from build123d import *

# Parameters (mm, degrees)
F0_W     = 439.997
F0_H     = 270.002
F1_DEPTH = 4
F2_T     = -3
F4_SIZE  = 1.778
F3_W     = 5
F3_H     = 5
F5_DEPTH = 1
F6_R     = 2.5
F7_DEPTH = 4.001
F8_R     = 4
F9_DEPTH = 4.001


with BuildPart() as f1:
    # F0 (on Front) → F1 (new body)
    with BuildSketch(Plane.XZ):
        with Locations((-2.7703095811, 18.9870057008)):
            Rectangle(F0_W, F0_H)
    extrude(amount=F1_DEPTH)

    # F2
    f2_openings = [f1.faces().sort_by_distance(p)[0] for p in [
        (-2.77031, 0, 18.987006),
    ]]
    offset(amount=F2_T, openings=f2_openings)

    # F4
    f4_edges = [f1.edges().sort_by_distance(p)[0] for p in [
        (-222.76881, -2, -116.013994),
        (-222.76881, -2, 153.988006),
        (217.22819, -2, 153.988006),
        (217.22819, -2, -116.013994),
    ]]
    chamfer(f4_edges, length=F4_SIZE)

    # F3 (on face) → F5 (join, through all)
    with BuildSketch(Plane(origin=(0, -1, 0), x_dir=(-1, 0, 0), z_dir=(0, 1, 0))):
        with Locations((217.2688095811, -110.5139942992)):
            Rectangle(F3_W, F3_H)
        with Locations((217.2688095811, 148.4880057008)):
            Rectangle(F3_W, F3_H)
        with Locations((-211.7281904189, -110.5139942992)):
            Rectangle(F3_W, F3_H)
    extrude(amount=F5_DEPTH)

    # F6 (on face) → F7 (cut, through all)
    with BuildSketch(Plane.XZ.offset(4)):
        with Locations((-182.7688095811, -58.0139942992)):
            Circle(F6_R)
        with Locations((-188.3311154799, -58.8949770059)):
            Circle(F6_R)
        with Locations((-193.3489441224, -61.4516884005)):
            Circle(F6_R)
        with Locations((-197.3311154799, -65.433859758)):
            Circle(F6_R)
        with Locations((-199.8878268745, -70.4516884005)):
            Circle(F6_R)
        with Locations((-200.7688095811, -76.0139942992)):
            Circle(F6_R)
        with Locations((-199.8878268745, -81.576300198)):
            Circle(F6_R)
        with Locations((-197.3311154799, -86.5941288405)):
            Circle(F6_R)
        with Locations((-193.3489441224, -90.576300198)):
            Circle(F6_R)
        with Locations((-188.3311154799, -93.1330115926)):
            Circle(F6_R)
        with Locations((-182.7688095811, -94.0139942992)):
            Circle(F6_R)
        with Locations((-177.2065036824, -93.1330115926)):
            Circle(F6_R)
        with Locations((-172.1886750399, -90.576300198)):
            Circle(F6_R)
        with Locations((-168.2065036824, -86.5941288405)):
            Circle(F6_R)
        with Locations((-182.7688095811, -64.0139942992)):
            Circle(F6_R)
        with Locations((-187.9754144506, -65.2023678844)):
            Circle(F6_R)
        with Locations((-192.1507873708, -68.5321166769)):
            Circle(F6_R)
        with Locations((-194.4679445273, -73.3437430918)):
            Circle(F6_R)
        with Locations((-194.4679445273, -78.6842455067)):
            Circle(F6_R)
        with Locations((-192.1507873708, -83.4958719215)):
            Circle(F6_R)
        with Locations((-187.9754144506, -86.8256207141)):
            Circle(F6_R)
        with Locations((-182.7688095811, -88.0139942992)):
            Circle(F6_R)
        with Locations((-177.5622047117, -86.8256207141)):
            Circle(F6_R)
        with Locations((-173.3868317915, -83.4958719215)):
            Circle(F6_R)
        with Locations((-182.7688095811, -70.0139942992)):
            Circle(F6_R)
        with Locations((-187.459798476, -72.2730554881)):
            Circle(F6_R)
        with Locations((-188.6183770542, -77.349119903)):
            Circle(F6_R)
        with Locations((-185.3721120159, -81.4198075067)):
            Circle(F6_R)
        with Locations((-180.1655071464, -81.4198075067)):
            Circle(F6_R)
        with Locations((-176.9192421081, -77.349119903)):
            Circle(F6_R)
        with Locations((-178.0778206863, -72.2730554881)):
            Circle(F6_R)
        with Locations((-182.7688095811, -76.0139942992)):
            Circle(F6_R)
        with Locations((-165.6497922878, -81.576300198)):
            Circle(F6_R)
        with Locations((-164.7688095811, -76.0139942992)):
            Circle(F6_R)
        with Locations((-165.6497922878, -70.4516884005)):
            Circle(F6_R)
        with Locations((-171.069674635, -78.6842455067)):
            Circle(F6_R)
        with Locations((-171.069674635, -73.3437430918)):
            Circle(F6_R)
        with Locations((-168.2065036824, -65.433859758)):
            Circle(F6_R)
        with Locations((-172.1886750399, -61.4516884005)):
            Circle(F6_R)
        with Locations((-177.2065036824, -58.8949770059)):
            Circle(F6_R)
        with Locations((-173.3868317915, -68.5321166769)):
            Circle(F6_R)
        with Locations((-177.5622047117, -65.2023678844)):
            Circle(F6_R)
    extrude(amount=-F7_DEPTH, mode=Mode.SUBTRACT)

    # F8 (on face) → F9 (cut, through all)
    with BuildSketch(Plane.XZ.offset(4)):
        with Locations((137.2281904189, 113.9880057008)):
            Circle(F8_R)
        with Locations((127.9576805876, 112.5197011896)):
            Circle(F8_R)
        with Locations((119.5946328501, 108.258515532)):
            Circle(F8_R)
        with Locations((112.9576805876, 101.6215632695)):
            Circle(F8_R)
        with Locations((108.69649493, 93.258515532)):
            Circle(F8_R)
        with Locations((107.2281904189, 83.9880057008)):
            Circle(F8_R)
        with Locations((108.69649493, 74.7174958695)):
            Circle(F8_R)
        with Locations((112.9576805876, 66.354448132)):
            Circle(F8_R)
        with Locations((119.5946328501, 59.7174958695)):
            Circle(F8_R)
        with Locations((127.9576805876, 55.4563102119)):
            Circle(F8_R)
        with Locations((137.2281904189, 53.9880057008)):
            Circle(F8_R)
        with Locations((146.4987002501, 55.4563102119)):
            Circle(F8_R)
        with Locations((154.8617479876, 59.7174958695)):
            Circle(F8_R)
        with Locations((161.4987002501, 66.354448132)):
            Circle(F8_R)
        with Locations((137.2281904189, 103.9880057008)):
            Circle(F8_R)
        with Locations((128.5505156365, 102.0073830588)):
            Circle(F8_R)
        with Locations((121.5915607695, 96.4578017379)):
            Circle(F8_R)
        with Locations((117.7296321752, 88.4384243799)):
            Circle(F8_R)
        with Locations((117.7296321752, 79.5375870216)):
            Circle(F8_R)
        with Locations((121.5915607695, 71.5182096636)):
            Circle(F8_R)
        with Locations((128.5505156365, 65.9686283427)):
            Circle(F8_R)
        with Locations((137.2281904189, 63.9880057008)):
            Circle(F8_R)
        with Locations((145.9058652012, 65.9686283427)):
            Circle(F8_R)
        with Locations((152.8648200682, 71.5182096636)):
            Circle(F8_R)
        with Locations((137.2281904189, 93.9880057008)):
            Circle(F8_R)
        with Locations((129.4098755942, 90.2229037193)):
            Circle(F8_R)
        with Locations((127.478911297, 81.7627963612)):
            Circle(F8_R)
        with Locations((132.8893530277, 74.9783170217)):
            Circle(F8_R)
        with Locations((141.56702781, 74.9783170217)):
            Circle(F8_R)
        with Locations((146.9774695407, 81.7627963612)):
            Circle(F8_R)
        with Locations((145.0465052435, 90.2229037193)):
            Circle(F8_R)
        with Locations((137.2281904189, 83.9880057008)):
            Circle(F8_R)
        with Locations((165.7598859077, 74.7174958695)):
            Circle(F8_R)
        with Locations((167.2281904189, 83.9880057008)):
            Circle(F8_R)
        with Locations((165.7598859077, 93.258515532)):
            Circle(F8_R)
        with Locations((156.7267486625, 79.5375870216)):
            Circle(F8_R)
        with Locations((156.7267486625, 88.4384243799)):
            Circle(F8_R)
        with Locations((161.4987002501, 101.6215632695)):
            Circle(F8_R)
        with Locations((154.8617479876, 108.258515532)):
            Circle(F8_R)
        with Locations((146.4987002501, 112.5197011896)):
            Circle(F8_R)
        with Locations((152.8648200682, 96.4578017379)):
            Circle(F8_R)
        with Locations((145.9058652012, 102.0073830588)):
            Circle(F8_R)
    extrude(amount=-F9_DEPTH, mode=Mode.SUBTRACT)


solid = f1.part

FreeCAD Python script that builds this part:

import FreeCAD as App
import Part
import Sketcher


def edges_at(feature, points):
    """Names of the edges that pass closest to the given points."""
    edges = feature.Shape.Edges
    near = lambda p: min(range(len(edges)), key=lambda i: edges[i].distToShape(Part.Vertex(*p))[0])
    return sorted({f"Edge{near(p) + 1}" for p in points})


def faces_at(feature, points):
    """Names of the faces that lie closest to the given points."""
    faces = feature.Shape.Faces
    near = lambda p: min(range(len(faces)), key=lambda i: faces[i].distToShape(Part.Vertex(*p))[0])
    return sorted({f"Face{near(p) + 1}" for p in points})


def add_polygon(sketch, points):
    """Adds a closed chain of lines whose ends are joined by coincident constraints."""
    first, n = sketch.GeometryCount, len(points)
    for a, b in zip(points, points[1:] + points[:1]):
        sketch.addGeometry(Part.LineSegment(App.Vector(*a, 0), App.Vector(*b, 0)), False)
    for i in range(n):
        sketch.addConstraint(Sketcher.Constraint("Coincident", first + i, 2, first + (i + 1) % n, 1))

doc = App.newDocument("Part")
body = doc.addObject("PartDesign::Body", "Body")

# Sketch on XZ plane
sketch1 = doc.addObject("Sketcher::SketchObject", "Sketch")
body.addObject(sketch1)
sketch1.AttachmentSupport = (doc.XZ_Plane, [""])
sketch1.MapMode = "FlatFace"
add_polygon(sketch1, [(-223, 154), (-223, -116), (217, -116), (217, 154)])  # lines 0-3
sketch1.addConstraint(Sketcher.Constraint("Vertical", 0))
sketch1.addConstraint(Sketcher.Constraint("Horizontal", 1))
sketch1.addConstraint(Sketcher.Constraint("Vertical", 2))
sketch1.addConstraint(Sketcher.Constraint("Horizontal", 3))
sketch1.addConstraint(Sketcher.Constraint("DistanceX", 1, 1, 1, 2, 439.997))
sketch1.addConstraint(Sketcher.Constraint("DistanceY", 0, 2, 0, 1, 270.002))
sketch1.addConstraint(Sketcher.Constraint("DistanceX", 0, 2, -1, 1, 222.76881))
sketch1.addConstraint(Sketcher.Constraint("DistanceY", 0, 2, -1, 1, 116.013994))
pad1 = doc.addObject("PartDesign::Pad", "Pad")
body.addObject(pad1)
pad1.Profile = sketch1
pad1.Length = 4
doc.recompute()

thickness = doc.addObject("PartDesign::Thickness", "Thickness")
body.addObject(thickness)
thickness.Base = (pad1, faces_at(pad1, [(-2.77, 0, 18.987)]))
thickness.Value = 3
thickness.Reversed = True
thickness.Join = "Arc"
doc.recompute()

chamfer = doc.addObject("PartDesign::Chamfer", "Chamfer")
body.addObject(chamfer)
chamfer.Base = (thickness, edges_at(thickness, [
    (-222.769, -2, -116.014),
    (-222.769, -2, 153.988),
    (217.228, -2, 153.988),
    (217.228, -2, -116.014),
]))
chamfer.Size = 1.778

# Sketch on XZ plane
sketch2 = doc.addObject("Sketcher::SketchObject", "Sketch001")
body.addObject(sketch2)
sketch2.AttachmentSupport = (doc.XZ_Plane, [""])
sketch2.MapMode = "FlatFace"
sketch2.AttachmentOffset = App.Placement(App.Vector(0, 0, 1), App.Rotation())
add_polygon(sketch2, [(-215, -108), (-215, -113), (-220, -113), (-220, -108)])  # lines 0-3
add_polygon(sketch2, [(-215, 151), (-215, 146), (-220, 146), (-220, 151)])  # lines 4-7
add_polygon(sketch2, [(214, -108), (214, -113), (209, -113), (209, -108)])  # lines 8-11
sketch2.addConstraint(Sketcher.Constraint("Vertical", 0))
sketch2.addConstraint(Sketcher.Constraint("Horizontal", 1))
sketch2.addConstraint(Sketcher.Constraint("Vertical", 2))
sketch2.addConstraint(Sketcher.Constraint("Horizontal", 3))
sketch2.addConstraint(Sketcher.Constraint("Vertical", 4))
sketch2.addConstraint(Sketcher.Constraint("Horizontal", 5))
sketch2.addConstraint(Sketcher.Constraint("Vertical", 6))
sketch2.addConstraint(Sketcher.Constraint("Horizontal", 7))
sketch2.addConstraint(Sketcher.Constraint("Vertical", 8))
sketch2.addConstraint(Sketcher.Constraint("Horizontal", 9))
sketch2.addConstraint(Sketcher.Constraint("Vertical", 10))
sketch2.addConstraint(Sketcher.Constraint("Horizontal", 11))
sketch2.addConstraint(Sketcher.Constraint("Horizontal", 1, 2, 8, 2))
sketch2.addConstraint(Sketcher.Constraint("Horizontal", 3, 2, 10, 2))
sketch2.addConstraint(Sketcher.Constraint("Vertical", 3, 2, 4, 2))
sketch2.addConstraint(Sketcher.Constraint("Vertical", 2, 2, 5, 2))
sketch2.addConstraint(Sketcher.Constraint("Equal", 7, 9))
sketch2.addConstraint(Sketcher.Constraint("Equal", 11, 0))
sketch2.addConstraint(Sketcher.Constraint("Equal", 2, 4))
sketch2.addConstraint(Sketcher.Constraint("DistanceX", 1, 2, 1, 1, 5.0))
sketch2.addConstraint(Sketcher.Constraint("DistanceY", 3, 2, 4, 2, 254.002))
sketch2.addConstraint(Sketcher.Constraint("DistanceX", 0, 2, 8, 2, 428.997))
sketch2.addConstraint(Sketcher.Constraint("DistanceX", 0, 2, -1, 1, 214.76881))
sketch2.addConstraint(Sketcher.Constraint("DistanceY", 0, 2, -1, 1, 113.013994))
pad2 = doc.addObject("PartDesign::Pad", "Pad001")
body.addObject(pad2)
pad2.Profile = sketch2
pad2.Length = 1
pad2.Reversed = True

# Sketch on XZ plane
sketch3 = doc.addObject("Sketcher::SketchObject", "Sketch002")
body.addObject(sketch3)
sketch3.AttachmentSupport = (doc.XZ_Plane, [""])
sketch3.MapMode = "FlatFace"
sketch3.AttachmentOffset = App.Placement(App.Vector(0, 0, 4), App.Rotation())
sketch3.addGeometry(Part.Circle(App.Vector(-182.8, -58, 0), App.Vector(0, 0, 1), 2.5), False)
sketch3.addGeometry(Part.Circle(App.Vector(-188.3, -58.9, 0), App.Vector(0, 0, 1), 2.5), False)
sketch3.addGeometry(Part.Circle(App.Vector(-193.3, -61.5, 0), App.Vector(0, 0, 1), 2.5), False)
sketch3.addGeometry(Part.Circle(App.Vector(-197.3, -65.4, 0), App.Vector(0, 0, 1), 2.5), False)
sketch3.addGeometry(Part.Circle(App.Vector(-199.9, -70.5, 0), App.Vector(0, 0, 1), 2.5), False)
sketch3.addGeometry(Part.Circle(App.Vector(-200.8, -76, 0), App.Vector(0, 0, 1), 2.5), False)
sketch3.addGeometry(Part.Circle(App.Vector(-199.9, -81.6, 0), App.Vector(0, 0, 1), 2.5), False)
sketch3.addGeometry(Part.Circle(App.Vector(-197.3, -86.6, 0), App.Vector(0, 0, 1), 2.5), False)
sketch3.addGeometry(Part.Circle(App.Vector(-193.3, -90.6, 0), App.Vector(0, 0, 1), 2.5), False)
sketch3.addGeometry(Part.Circle(App.Vector(-188.3, -93.1, 0), App.Vector(0, 0, 1), 2.5), False)
sketch3.addGeometry(Part.Circle(App.Vector(-182.8, -94, 0), App.Vector(0, 0, 1), 2.5), False)
sketch3.addGeometry(Part.Circle(App.Vector(-177.2, -93.1, 0), App.Vector(0, 0, 1), 2.5), False)
sketch3.addGeometry(Part.Circle(App.Vector(-172.2, -90.6, 0), App.Vector(0, 0, 1), 2.5), False)
sketch3.addGeometry(Part.Circle(App.Vector(-168.2, -86.6, 0), App.Vector(0, 0, 1), 2.5), False)
sketch3.addGeometry(Part.Circle(App.Vector(-182.8, -64, 0), App.Vector(0, 0, 1), 2.5), False)
sketch3.addGeometry(Part.Circle(App.Vector(-188, -65.2, 0), App.Vector(0, 0, 1), 2.5), False)
sketch3.addGeometry(Part.Circle(App.Vector(-192.2, -68.5, 0), App.Vector(0, 0, 1), 2.5), False)
sketch3.addGeometry(Part.Circle(App.Vector(-194.5, -73.3, 0), App.Vector(0, 0, 1), 2.5), False)
sketch3.addGeometry(Part.Circle(App.Vector(-194.5, -78.7, 0), App.Vector(0, 0, 1), 2.5), False)
sketch3.addGeometry(Part.Circle(App.Vector(-192.2, -83.5, 0), App.Vector(0, 0, 1), 2.5), False)
sketch3.addGeometry(Part.Circle(App.Vector(-188, -86.8, 0), App.Vector(0, 0, 1), 2.5), False)
sketch3.addGeometry(Part.Circle(App.Vector(-182.8, -88, 0), App.Vector(0, 0, 1), 2.5), False)
sketch3.addGeometry(Part.Circle(App.Vector(-177.6, -86.8, 0), App.Vector(0, 0, 1), 2.5), False)
sketch3.addGeometry(Part.Circle(App.Vector(-173.4, -83.5, 0), App.Vector(0, 0, 1), 2.5), False)
sketch3.addGeometry(Part.Circle(App.Vector(-182.8, -70, 0), App.Vector(0, 0, 1), 2.5), False)
sketch3.addGeometry(Part.Circle(App.Vector(-187.5, -72.3, 0), App.Vector(0, 0, 1), 2.5), False)
sketch3.addGeometry(Part.Circle(App.Vector(-188.6, -77.3, 0), App.Vector(0, 0, 1), 2.5), False)
sketch3.addGeometry(Part.Circle(App.Vector(-185.4, -81.4, 0), App.Vector(0, 0, 1), 2.5), False)
sketch3.addGeometry(Part.Circle(App.Vector(-180.2, -81.4, 0), App.Vector(0, 0, 1), 2.5), False)
sketch3.addGeometry(Part.Circle(App.Vector(-176.9, -77.3, 0), App.Vector(0, 0, 1), 2.5), False)
sketch3.addGeometry(Part.Circle(App.Vector(-178.1, -72.3, 0), App.Vector(0, 0, 1), 2.5), False)
sketch3.addGeometry(Part.Circle(App.Vector(-182.8, -76, 0), App.Vector(0, 0, 1), 2.5), False)
sketch3.addGeometry(Part.Circle(App.Vector(-165.6, -81.6, 0), App.Vector(0, 0, 1), 2.5), False)
sketch3.addGeometry(Part.Circle(App.Vector(-164.8, -76, 0), App.Vector(0, 0, 1), 2.5), False)
sketch3.addGeometry(Part.Circle(App.Vector(-165.6, -70.5, 0), App.Vector(0, 0, 1), 2.5), False)
sketch3.addGeometry(Part.Circle(App.Vector(-171.1, -78.7, 0), App.Vector(0, 0, 1), 2.5), False)
sketch3.addGeometry(Part.Circle(App.Vector(-171.1, -73.3, 0), App.Vector(0, 0, 1), 2.5), False)
sketch3.addGeometry(Part.Circle(App.Vector(-168.2, -65.4, 0), App.Vector(0, 0, 1), 2.5), False)
sketch3.addGeometry(Part.Circle(App.Vector(-172.2, -61.5, 0), App.Vector(0, 0, 1), 2.5), False)
sketch3.addGeometry(Part.Circle(App.Vector(-177.2, -58.9, 0), App.Vector(0, 0, 1), 2.5), False)
sketch3.addGeometry(Part.Circle(App.Vector(-173.4, -68.5, 0), App.Vector(0, 0, 1), 2.5), False)
sketch3.addGeometry(Part.Circle(App.Vector(-177.6, -65.2, 0), App.Vector(0, 0, 1), 2.5), False)
sketch3.addConstraint(Sketcher.Constraint("Equal", 0, 1))
sketch3.addConstraint(Sketcher.Constraint("Equal", 1, 2))
sketch3.addConstraint(Sketcher.Constraint("Equal", 2, 3))
sketch3.addConstraint(Sketcher.Constraint("Equal", 3, 4))
sketch3.addConstraint(Sketcher.Constraint("Equal", 4, 5))
sketch3.addConstraint(Sketcher.Constraint("Equal", 5, 6))
sketch3.addConstraint(Sketcher.Constraint("Equal", 6, 7))
sketch3.addConstraint(Sketcher.Constraint("Equal", 7, 8))
sketch3.addConstraint(Sketcher.Constraint("Equal", 8, 9))
sketch3.addConstraint(Sketcher.Constraint("Equal", 9, 10))
sketch3.addConstraint(Sketcher.Constraint("Equal", 10, 11))
sketch3.addConstraint(Sketcher.Constraint("Equal", 11, 12))
sketch3.addConstraint(Sketcher.Constraint("Equal", 12, 13))
sketch3.addConstraint(Sketcher.Constraint("Equal", 13, 14))
sketch3.addConstraint(Sketcher.Constraint("Equal", 14, 15))
sketch3.addConstraint(Sketcher.Constraint("Equal", 15, 16))
sketch3.addConstraint(Sketcher.Constraint("Equal", 16, 17))
sketch3.addConstraint(Sketcher.Constraint("Equal", 17, 18))
sketch3.addConstraint(Sketcher.Constraint("Equal", 18, 19))
sketch3.addConstraint(Sketcher.Constraint("Equal", 19, 20))
sketch3.addConstraint(Sketcher.Constraint("Equal", 20, 21))
sketch3.addConstraint(Sketcher.Constraint("Equal", 21, 22))
sketch3.addConstraint(Sketcher.Constraint("Equal", 22, 23))
sketch3.addConstraint(Sketcher.Constraint("Equal", 23, 24))
sketch3.addConstraint(Sketcher.Constraint("Equal", 24, 25))
sketch3.addConstraint(Sketcher.Constraint("Equal", 25, 26))
sketch3.addConstraint(Sketcher.Constraint("Equal", 26, 27))
sketch3.addConstraint(Sketcher.Constraint("Equal", 27, 28))
sketch3.addConstraint(Sketcher.Constraint("Equal", 28, 29))
sketch3.addConstraint(Sketcher.Constraint("Equal", 29, 30))
sketch3.addConstraint(Sketcher.Constraint("Equal", 30, 31))
sketch3.addConstraint(Sketcher.Constraint("Equal", 31, 32))
sketch3.addConstraint(Sketcher.Constraint("Equal", 32, 33))
sketch3.addConstraint(Sketcher.Constraint("Equal", 33, 34))
sketch3.addConstraint(Sketcher.Constraint("Equal", 34, 35))
sketch3.addConstraint(Sketcher.Constraint("Equal", 35, 36))
sketch3.addConstraint(Sketcher.Constraint("Equal", 36, 37))
sketch3.addConstraint(Sketcher.Constraint("Equal", 37, 38))
sketch3.addConstraint(Sketcher.Constraint("Equal", 38, 39))
sketch3.addConstraint(Sketcher.Constraint("Equal", 39, 40))
sketch3.addConstraint(Sketcher.Constraint("Equal", 40, 41))
sketch3.addConstraint(Sketcher.Constraint("Horizontal", 9, 3, 11, 3))
sketch3.addConstraint(Sketcher.Constraint("Horizontal", 8, 3, 12, 3))
sketch3.addConstraint(Sketcher.Constraint("Horizontal", 7, 3, 13, 3))
sketch3.addConstraint(Sketcher.Constraint("Horizontal", 20, 3, 22, 3))
sketch3.addConstraint(Sketcher.Constraint("Horizontal", 19, 3, 23, 3))
sketch3.addConstraint(Sketcher.Constraint("Horizontal", 27, 3, 28, 3))
sketch3.addConstraint(Sketcher.Constraint("Horizontal", 26, 3, 29, 3))
sketch3.addConstraint(Sketcher.Constraint("Horizontal", 25, 3, 30, 3))
sketch3.addConstraint(Sketcher.Constraint("Horizontal", 5, 3, 31, 3))
sketch3.addConstraint(Sketcher.Constraint("Horizontal", 6, 3, 32, 3))
sketch3.addConstraint(Sketcher.Constraint("Horizontal", 31, 3, 33, 3))
sketch3.addConstraint(Sketcher.Constraint("Horizontal", 4, 3, 34, 3))
sketch3.addConstraint(Sketcher.Constraint("Horizontal", 18, 3, 35, 3))
sketch3.addConstraint(Sketcher.Constraint("Horizontal", 17, 3, 36, 3))
sketch3.addConstraint(Sketcher.Constraint("Horizontal", 3, 3, 37, 3))
sketch3.addConstraint(Sketcher.Constraint("Horizontal", 2, 3, 38, 3))
sketch3.addConstraint(Sketcher.Constraint("Horizontal", 1, 3, 39, 3))
sketch3.addConstraint(Sketcher.Constraint("Horizontal", 16, 3, 40, 3))
sketch3.addConstraint(Sketcher.Constraint("Horizontal", 15, 3, 41, 3))
sketch3.addConstraint(Sketcher.Constraint("Vertical", 4, 3, 6, 3))
sketch3.addConstraint(Sketcher.Constraint("Vertical", 3, 3, 7, 3))
sketch3.addConstraint(Sketcher.Constraint("Vertical", 2, 3, 8, 3))
sketch3.addConstraint(Sketcher.Constraint("Vertical", 1, 3, 9, 3))
sketch3.addConstraint(Sketcher.Constraint("Vertical", 0, 3, 10, 3))
sketch3.addConstraint(Sketcher.Constraint("Vertical", 10, 3, 14, 3))
sketch3.addConstraint(Sketcher.Constraint("Vertical", 17, 3, 18, 3))
sketch3.addConstraint(Sketcher.Constraint("Vertical", 16, 3, 19, 3))
sketch3.addConstraint(Sketcher.Constraint("Vertical", 15, 3, 20, 3))
sketch3.addConstraint(Sketcher.Constraint("Vertical", 14, 3, 21, 3))
sketch3.addConstraint(Sketcher.Constraint("Vertical", 21, 3, 24, 3))
sketch3.addConstraint(Sketcher.Constraint("Vertical", 24, 3, 31, 3))
sketch3.addConstraint(Sketcher.Constraint("Vertical", 32, 3, 34, 3))
sketch3.addConstraint(Sketcher.Constraint("Vertical", 35, 3, 36, 3))
sketch3.addConstraint(Sketcher.Constraint("Vertical", 13, 3, 37, 3))
sketch3.addConstraint(Sketcher.Constraint("Vertical", 12, 3, 38, 3))
sketch3.addConstraint(Sketcher.Constraint("Vertical", 11, 3, 39, 3))
sketch3.addConstraint(Sketcher.Constraint("Vertical", 23, 3, 40, 3))
sketch3.addConstraint(Sketcher.Constraint("Vertical", 22, 3, 41, 3))
sketch3.addConstraint(Sketcher.Constraint("Diameter", 0, 5.0))
sketch3.addConstraint(Sketcher.Constraint("DistanceX", 3, 3, 1, 3, 9.0))
sketch3.addConstraint(Sketcher.Constraint("DistanceY", 4, 3, 2, 3, 9.0))
sketch3.addConstraint(Sketcher.Constraint("DistanceX", 5, 3, 0, 3, 18.0))
sketch3.addConstraint(Sketcher.Constraint("DistanceY", 5, 3, 0, 3, 18.0))
sketch3.addConstraint(Sketcher.Constraint("DistanceY", 8, 3, 6, 3, 9.0))
sketch3.addConstraint(Sketcher.Constraint("DistanceY", 10, 3, 5, 3, 18.0))
sketch3.addConstraint(Sketcher.Constraint("DistanceX", 11, 3, 13, 3, 9.0))
sketch3.addConstraint(Sketcher.Constraint("DistanceY", 14, 3, 0, 3, 6.0))
sketch3.addConstraint(Sketcher.Constraint("DistanceY", 10, 3, 21, 3, 6.0))
sketch3.addConstraint(Sketcher.Constraint("DistanceY", 24, 3, 14, 3, 6.0))
sketch3.addConstraint(Sketcher.Constraint("DistanceX", 38, 3, 36, 3, 1.119))
sketch3.addConstraint(Sketcher.Constraint("DistanceY", 6, 3, -1, 1, 81.5763))
sketch3.addConstraint(Sketcher.Constraint("DistanceX", 25, 3, -1, 1, 187.459798))
sketch3.addConstraint(Sketcher.Constraint("DistanceX", 1, 3, 15, 3, 0.355701))
sketch3.addConstraint(Sketcher.Constraint("DistanceX", 22, 3, 11, 3, 0.355701))
sketch3.addConstraint(Sketcher.Constraint("DistanceY", 22, 3, 29, 3, 9.476501))
sketch3.addConstraint(Sketcher.Constraint("DistanceX", 0, 3, -1, 1, 182.76881))
sketch3.addConstraint(Sketcher.Constraint("DistanceY", 2, 3, -1, 1, 61.451688))
sketch3.addConstraint(Sketcher.Constraint("DistanceY", 3, 3, -1, 1, 65.43386))
sketch3.addConstraint(Sketcher.Constraint("DistanceY", 7, 3, -1, 1, 86.594129))
sketch3.addConstraint(Sketcher.Constraint("DistanceY", 9, 3, -1, 1, 93.133012))
sketch3.addConstraint(Sketcher.Constraint("DistanceY", 19, 3, -1, 1, 83.495872))
sketch3.addConstraint(Sketcher.Constraint("DistanceY", 20, 3, -1, 1, 86.825621))
sketch3.addConstraint(Sketcher.Constraint("DistanceX", 23, 3, -1, 1, 173.386832))
sketch3.addConstraint(Sketcher.Constraint("DistanceX", 30, 3, -1, 1, 178.077821))
sketch3.addConstraint(Sketcher.Constraint("DistanceX", 33, 3, -1, 1, 164.76881))
sketch3.addConstraint(Sketcher.Constraint("DistanceX", 2, 3, 1, 3, 5.017829))
sketch3.addConstraint(Sketcher.Constraint("DistanceY", 2, 3, 1, 3, 2.556711))
sketch3.addConstraint(Sketcher.Constraint("DistanceX", 4, 3, 3, 3, 2.556711))
sketch3.addConstraint(Sketcher.Constraint("DistanceX", 9, 3, 11, 3, 11.124612))
sketch3.addConstraint(Sketcher.Constraint("DistanceX", 11, 3, 12, 3, 5.017829))
sketch3.addConstraint(Sketcher.Constraint("DistanceY", 15, 3, 1, 3, 6.307391))
sketch3.addConstraint(Sketcher.Constraint("DistanceY", 16, 3, 15, 3, 3.329749))
sketch3.addConstraint(Sketcher.Constraint("DistanceX", 3, 3, 16, 3, 5.180328))
sketch3.addConstraint(Sketcher.Constraint("DistanceY", 5, 3, 17, 3, 2.670251))
sketch3.addConstraint(Sketcher.Constraint("DistanceX", 3, 3, 17, 3, 2.863171))
sketch3.addConstraint(Sketcher.Constraint("DistanceY", 18, 3, 5, 3, 2.670251))
sketch3.addConstraint(Sketcher.Constraint("DistanceX", 23, 3, 13, 3, 5.180328))
sketch3.addConstraint(Sketcher.Constraint("DistanceY", 25, 3, 24, 3, 2.259061))
sketch3.addConstraint(Sketcher.Constraint("DistanceY", 25, 3, 16, 3, 3.740939))
sketch3.addConstraint(Sketcher.Constraint("DistanceX", 26, 3, 25, 3, 1.158579))
sketch3.addConstraint(Sketcher.Constraint("DistanceX", 26, 3, 28, 3, 8.45287))
sketch3.addConstraint(Sketcher.Constraint("DistanceX", 29, 3, 23, 3, 3.53241))
sketch3.addConstraint(Sketcher.Constraint("DistanceX", 27, 3, 29, 3, 8.45287))
sketch3.addConstraint(Sketcher.Constraint("DistanceX", 13, 3, 32, 3, 2.556711))
sketch3.addConstraint(Sketcher.Constraint("DistanceY", 27, 3, -1, 1, 81.419808))
pocket1 = doc.addObject("PartDesign::Pocket", "Pocket")
body.addObject(pocket1)
pocket1.Profile = sketch3
pocket1.Type = "ThroughAll"

# Sketch on XZ plane
sketch4 = doc.addObject("Sketcher::SketchObject", "Sketch003")
body.addObject(sketch4)
sketch4.AttachmentSupport = (doc.XZ_Plane, [""])
sketch4.MapMode = "FlatFace"
sketch4.AttachmentOffset = App.Placement(App.Vector(0, 0, 4), App.Rotation())
sketch4.addGeometry(Part.Circle(App.Vector(137.2, 114, 0), App.Vector(0, 0, 1), 4), False)
sketch4.addGeometry(Part.Circle(App.Vector(128, 112.5, 0), App.Vector(0, 0, 1), 4), False)
sketch4.addGeometry(Part.Circle(App.Vector(119.6, 108.3, 0), App.Vector(0, 0, 1), 4), False)
sketch4.addGeometry(Part.Circle(App.Vector(113, 101.6, 0), App.Vector(0, 0, 1), 4), False)
sketch4.addGeometry(Part.Circle(App.Vector(108.7, 93.3, 0), App.Vector(0, 0, 1), 4), False)
sketch4.addGeometry(Part.Circle(App.Vector(107.2, 84, 0), App.Vector(0, 0, 1), 4), False)
sketch4.addGeometry(Part.Circle(App.Vector(108.7, 74.7, 0), App.Vector(0, 0, 1), 4), False)
sketch4.addGeometry(Part.Circle(App.Vector(113, 66.4, 0), App.Vector(0, 0, 1), 4), False)
sketch4.addGeometry(Part.Circle(App.Vector(119.6, 59.7, 0), App.Vector(0, 0, 1), 4), False)
sketch4.addGeometry(Part.Circle(App.Vector(128, 55.5, 0), App.Vector(0, 0, 1), 4), False)
sketch4.addGeometry(Part.Circle(App.Vector(137.2, 54, 0), App.Vector(0, 0, 1), 4), False)
sketch4.addGeometry(Part.Circle(App.Vector(146.5, 55.5, 0), App.Vector(0, 0, 1), 4), False)
sketch4.addGeometry(Part.Circle(App.Vector(154.9, 59.7, 0), App.Vector(0, 0, 1), 4), False)
sketch4.addGeometry(Part.Circle(App.Vector(161.5, 66.4, 0), App.Vector(0, 0, 1), 4), False)
sketch4.addGeometry(Part.Circle(App.Vector(137.2, 104, 0), App.Vector(0, 0, 1), 4), False)
sketch4.addGeometry(Part.Circle(App.Vector(128.6, 102, 0), App.Vector(0, 0, 1), 4), False)
sketch4.addGeometry(Part.Circle(App.Vector(121.6, 96.5, 0), App.Vector(0, 0, 1), 4), False)
sketch4.addGeometry(Part.Circle(App.Vector(117.7, 88.4, 0), App.Vector(0, 0, 1), 4), False)
sketch4.addGeometry(Part.Circle(App.Vector(117.7, 79.5, 0), App.Vector(0, 0, 1), 4), False)
sketch4.addGeometry(Part.Circle(App.Vector(121.6, 71.5, 0), App.Vector(0, 0, 1), 4), False)
sketch4.addGeometry(Part.Circle(App.Vector(128.6, 66, 0), App.Vector(0, 0, 1), 4), False)
sketch4.addGeometry(Part.Circle(App.Vector(137.2, 64, 0), App.Vector(0, 0, 1), 4), False)
sketch4.addGeometry(Part.Circle(App.Vector(145.9, 66, 0), App.Vector(0, 0, 1), 4), False)
sketch4.addGeometry(Part.Circle(App.Vector(152.9, 71.5, 0), App.Vector(0, 0, 1), 4), False)
sketch4.addGeometry(Part.Circle(App.Vector(137.2, 94, 0), App.Vector(0, 0, 1), 4), False)
sketch4.addGeometry(Part.Circle(App.Vector(129.4, 90.2, 0), App.Vector(0, 0, 1), 4), False)
sketch4.addGeometry(Part.Circle(App.Vector(127.5, 81.8, 0), App.Vector(0, 0, 1), 4), False)
sketch4.addGeometry(Part.Circle(App.Vector(132.9, 75, 0), App.Vector(0, 0, 1), 4), False)
sketch4.addGeometry(Part.Circle(App.Vector(141.6, 75, 0), App.Vector(0, 0, 1), 4), False)
sketch4.addGeometry(Part.Circle(App.Vector(147, 81.8, 0), App.Vector(0, 0, 1), 4), False)
sketch4.addGeometry(Part.Circle(App.Vector(145, 90.2, 0), App.Vector(0, 0, 1), 4), False)
sketch4.addGeometry(Part.Circle(App.Vector(137.2, 84, 0), App.Vector(0, 0, 1), 4), False)
sketch4.addGeometry(Part.Circle(App.Vector(165.8, 74.7, 0), App.Vector(0, 0, 1), 4), False)
sketch4.addGeometry(Part.Circle(App.Vector(167.2, 84, 0), App.Vector(0, 0, 1), 4), False)
sketch4.addGeometry(Part.Circle(App.Vector(165.8, 93.3, 0), App.Vector(0, 0, 1), 4), False)
sketch4.addGeometry(Part.Circle(App.Vector(156.7, 79.5, 0), App.Vector(0, 0, 1), 4), False)
sketch4.addGeometry(Part.Circle(App.Vector(156.7, 88.4, 0), App.Vector(0, 0, 1), 4), False)
sketch4.addGeometry(Part.Circle(App.Vector(161.5, 101.6, 0), App.Vector(0, 0, 1), 4), False)
sketch4.addGeometry(Part.Circle(App.Vector(154.9, 108.3, 0), App.Vector(0, 0, 1), 4), False)
sketch4.addGeometry(Part.Circle(App.Vector(146.5, 112.5, 0), App.Vector(0, 0, 1), 4), False)
sketch4.addGeometry(Part.Circle(App.Vector(152.9, 96.5, 0), App.Vector(0, 0, 1), 4), False)
sketch4.addGeometry(Part.Circle(App.Vector(145.9, 102, 0), App.Vector(0, 0, 1), 4), False)
sketch4.addConstraint(Sketcher.Constraint("Equal", 0, 1))
sketch4.addConstraint(Sketcher.Constraint("Equal", 1, 2))
sketch4.addConstraint(Sketcher.Constraint("Equal", 2, 3))
sketch4.addConstraint(Sketcher.Constraint("Equal", 3, 4))
sketch4.addConstraint(Sketcher.Constraint("Equal", 4, 5))
sketch4.addConstraint(Sketcher.Constraint("Equal", 5, 6))
sketch4.addConstraint(Sketcher.Constraint("Equal", 6, 7))
sketch4.addConstraint(Sketcher.Constraint("Equal", 7, 8))
sketch4.addConstraint(Sketcher.Constraint("Equal", 8, 9))
sketch4.addConstraint(Sketcher.Constraint("Equal", 9, 10))
sketch4.addConstraint(Sketcher.Constraint("Equal", 10, 11))
sketch4.addConstraint(Sketcher.Constraint("Equal", 11, 12))
sketch4.addConstraint(Sketcher.Constraint("Equal", 12, 13))
sketch4.addConstraint(Sketcher.Constraint("Equal", 13, 14))
sketch4.addConstraint(Sketcher.Constraint("Equal", 14, 15))
sketch4.addConstraint(Sketcher.Constraint("Equal", 15, 16))
sketch4.addConstraint(Sketcher.Constraint("Equal", 16, 17))
sketch4.addConstraint(Sketcher.Constraint("Equal", 17, 18))
sketch4.addConstraint(Sketcher.Constraint("Equal", 18, 19))
sketch4.addConstraint(Sketcher.Constraint("Equal", 19, 20))
sketch4.addConstraint(Sketcher.Constraint("Equal", 20, 21))
sketch4.addConstraint(Sketcher.Constraint("Equal", 21, 22))
sketch4.addConstraint(Sketcher.Constraint("Equal", 22, 23))
sketch4.addConstraint(Sketcher.Constraint("Equal", 23, 24))
sketch4.addConstraint(Sketcher.Constraint("Equal", 24, 25))
sketch4.addConstraint(Sketcher.Constraint("Equal", 25, 26))
sketch4.addConstraint(Sketcher.Constraint("Equal", 26, 27))
sketch4.addConstraint(Sketcher.Constraint("Equal", 27, 28))
sketch4.addConstraint(Sketcher.Constraint("Equal", 28, 29))
sketch4.addConstraint(Sketcher.Constraint("Equal", 29, 30))
sketch4.addConstraint(Sketcher.Constraint("Equal", 30, 31))
sketch4.addConstraint(Sketcher.Constraint("Equal", 31, 32))
sketch4.addConstraint(Sketcher.Constraint("Equal", 32, 33))
sketch4.addConstraint(Sketcher.Constraint("Equal", 33, 34))
sketch4.addConstraint(Sketcher.Constraint("Equal", 34, 35))
sketch4.addConstraint(Sketcher.Constraint("Equal", 35, 36))
sketch4.addConstraint(Sketcher.Constraint("Equal", 36, 37))
sketch4.addConstraint(Sketcher.Constraint("Equal", 37, 38))
sketch4.addConstraint(Sketcher.Constraint("Equal", 38, 39))
sketch4.addConstraint(Sketcher.Constraint("Equal", 39, 40))
sketch4.addConstraint(Sketcher.Constraint("Equal", 40, 41))
sketch4.addConstraint(Sketcher.Constraint("Horizontal", 9, 3, 11, 3))
sketch4.addConstraint(Sketcher.Constraint("Horizontal", 8, 3, 12, 3))
sketch4.addConstraint(Sketcher.Constraint("Horizontal", 7, 3, 13, 3))
sketch4.addConstraint(Sketcher.Constraint("Horizontal", 20, 3, 22, 3))
sketch4.addConstraint(Sketcher.Constraint("Horizontal", 19, 3, 23, 3))
sketch4.addConstraint(Sketcher.Constraint("Horizontal", 27, 3, 28, 3))
sketch4.addConstraint(Sketcher.Constraint("Horizontal", 26, 3, 29, 3))
sketch4.addConstraint(Sketcher.Constraint("Horizontal", 25, 3, 30, 3))
sketch4.addConstraint(Sketcher.Constraint("Horizontal", 5, 3, 31, 3))
sketch4.addConstraint(Sketcher.Constraint("Horizontal", 6, 3, 32, 3))
sketch4.addConstraint(Sketcher.Constraint("Horizontal", 31, 3, 33, 3))
sketch4.addConstraint(Sketcher.Constraint("Horizontal", 4, 3, 34, 3))
sketch4.addConstraint(Sketcher.Constraint("Horizontal", 18, 3, 35, 3))
sketch4.addConstraint(Sketcher.Constraint("Horizontal", 17, 3, 36, 3))
sketch4.addConstraint(Sketcher.Constraint("Horizontal", 3, 3, 37, 3))
sketch4.addConstraint(Sketcher.Constraint("Horizontal", 2, 3, 38, 3))
sketch4.addConstraint(Sketcher.Constraint("Horizontal", 1, 3, 39, 3))
sketch4.addConstraint(Sketcher.Constraint("Horizontal", 16, 3, 40, 3))
sketch4.addConstraint(Sketcher.Constraint("Horizontal", 15, 3, 41, 3))
sketch4.addConstraint(Sketcher.Constraint("Vertical", 4, 3, 6, 3))
sketch4.addConstraint(Sketcher.Constraint("Vertical", 3, 3, 7, 3))
sketch4.addConstraint(Sketcher.Constraint("Vertical", 2, 3, 8, 3))
sketch4.addConstraint(Sketcher.Constraint("Vertical", 1, 3, 9, 3))
sketch4.addConstraint(Sketcher.Constraint("Vertical", 0, 3, 10, 3))
sketch4.addConstraint(Sketcher.Constraint("Vertical", 10, 3, 14, 3))
sketch4.addConstraint(Sketcher.Constraint("Vertical", 17, 3, 18, 3))
sketch4.addConstraint(Sketcher.Constraint("Vertical", 16, 3, 19, 3))
sketch4.addConstraint(Sketcher.Constraint("Vertical", 15, 3, 20, 3))
sketch4.addConstraint(Sketcher.Constraint("Vertical", 14, 3, 21, 3))
sketch4.addConstraint(Sketcher.Constraint("Vertical", 21, 3, 24, 3))
sketch4.addConstraint(Sketcher.Constraint("Vertical", 24, 3, 31, 3))
sketch4.addConstraint(Sketcher.Constraint("Vertical", 32, 3, 34, 3))
sketch4.addConstraint(Sketcher.Constraint("Vertical", 35, 3, 36, 3))
sketch4.addConstraint(Sketcher.Constraint("Vertical", 13, 3, 37, 3))
sketch4.addConstraint(Sketcher.Constraint("Vertical", 12, 3, 38, 3))
sketch4.addConstraint(Sketcher.Constraint("Vertical", 11, 3, 39, 3))
sketch4.addConstraint(Sketcher.Constraint("Vertical", 23, 3, 40, 3))
sketch4.addConstraint(Sketcher.Constraint("Vertical", 22, 3, 41, 3))
sketch4.addConstraint(Sketcher.Constraint("Diameter", 0, 8.0))
sketch4.addConstraint(Sketcher.Constraint("DistanceX", 3, 3, 1, 3, 15.0))
sketch4.addConstraint(Sketcher.Constraint("DistanceY", 4, 3, 2, 3, 15.0))
sketch4.addConstraint(Sketcher.Constraint("DistanceX", 5, 3, 0, 3, 30.0))
sketch4.addConstraint(Sketcher.Constraint("DistanceY", 5, 3, 0, 3, 30.0))
sketch4.addConstraint(Sketcher.Constraint("DistanceY", 8, 3, 6, 3, 15.0))
sketch4.addConstraint(Sketcher.Constraint("DistanceY", 10, 3, 5, 3, 30.0))
sketch4.addConstraint(Sketcher.Constraint("DistanceX", 11, 3, 13, 3, 15.0))
sketch4.addConstraint(Sketcher.Constraint("DistanceY", 14, 3, 0, 3, 10.0))
sketch4.addConstraint(Sketcher.Constraint("DistanceY", 10, 3, 21, 3, 10.0))
sketch4.addConstraint(Sketcher.Constraint("DistanceY", 24, 3, 14, 3, 10.0))
sketch4.addConstraint(Sketcher.Constraint("DistanceX", 38, 3, 36, 3, 1.865001))
sketch4.addConstraint(Sketcher.Constraint("DistanceY", -1, 1, 1, 3, 112.519701))
sketch4.addConstraint(Sketcher.Constraint("DistanceX", -1, 1, 11, 3, 146.4987))
sketch4.addConstraint(Sketcher.Constraint("DistanceY", -1, 1, 16, 3, 96.457802))
sketch4.addConstraint(Sketcher.Constraint("DistanceY", 9, 3, 19, 3, 16.061899))
sketch4.addConstraint(Sketcher.Constraint("DistanceY", 25, 3, 24, 3, 3.765102))
sketch4.addConstraint(Sketcher.Constraint("DistanceY", 25, 3, 16, 3, 6.234898))
sketch4.addConstraint(Sketcher.Constraint("DistanceY", 32, 3, 29, 3, 7.0453))
sketch4.addConstraint(Sketcher.Constraint("DistanceX", -1, 1, 0, 3, 137.22819))
sketch4.addConstraint(Sketcher.Constraint("DistanceX", -1, 1, 1, 3, 127.957681))
sketch4.addConstraint(Sketcher.Constraint("DistanceY", -1, 1, 7, 3, 66.354448))
sketch4.addConstraint(Sketcher.Constraint("DistanceY", -1, 1, 9, 3, 55.45631))
sketch4.addConstraint(Sketcher.Constraint("DistanceX", -1, 1, 16, 3, 121.591561))
sketch4.addConstraint(Sketcher.Constraint("DistanceY", -1, 1, 20, 3, 65.968628))
sketch4.addConstraint(Sketcher.Constraint("DistanceX", -1, 1, 23, 3, 152.86482))
sketch4.addConstraint(Sketcher.Constraint("DistanceX", -1, 1, 26, 3, 127.478911))
sketch4.addConstraint(Sketcher.Constraint("DistanceX", -1, 1, 29, 3, 146.97747))
sketch4.addConstraint(Sketcher.Constraint("DistanceX", -1, 1, 33, 3, 167.22819))
sketch4.addConstraint(Sketcher.Constraint("DistanceX", -1, 1, 35, 3, 156.726749))
sketch4.addConstraint(Sketcher.Constraint("DistanceY", 2, 3, 0, 3, 5.72949))
sketch4.addConstraint(Sketcher.Constraint("DistanceY", 6, 3, 5, 3, 9.27051))
sketch4.addConstraint(Sketcher.Constraint("DistanceY", 15, 3, 1, 3, 10.512318))
sketch4.addConstraint(Sketcher.Constraint("DistanceY", 3, 3, 15, 3, 0.38582))
sketch4.addConstraint(Sketcher.Constraint("DistanceX", 17, 3, 16, 3, 3.861929))
sketch4.addConstraint(Sketcher.Constraint("DistanceY", 17, 3, 4, 3, 4.820091))
sketch4.addConstraint(Sketcher.Constraint("DistanceY", 6, 3, 18, 3, 4.820091))
sketch4.addConstraint(Sketcher.Constraint("DistanceX", 15, 3, 25, 3, 0.85936))
sketch4.addConstraint(Sketcher.Constraint("DistanceX", 26, 3, 27, 3, 5.410442))
sketch4.addConstraint(Sketcher.Constraint("DistanceY", 27, 3, 26, 3, 6.784479))
sketch4.addConstraint(Sketcher.Constraint("DistanceX", 28, 3, 29, 3, 5.410442))
sketch4.addConstraint(Sketcher.Constraint("DistanceX", 25, 3, 30, 3, 15.63663))
sketch4.addConstraint(Sketcher.Constraint("DistanceX", 22, 3, 32, 3, 19.854021))
sketch4.addConstraint(Sketcher.Constraint("DistanceX", 30, 3, 34, 3, 20.713381))
sketch4.addConstraint(Sketcher.Constraint("DistanceX", -1, 1, 2, 3, 119.594633))
sketch4.addConstraint(Sketcher.Constraint("DistanceX", -1, 1, 4, 3, 108.696495))
sketch4.addConstraint(Sketcher.Constraint("DistanceX", -1, 1, 15, 3, 128.550516))
pocket2 = doc.addObject("PartDesign::Pocket", "Pocket001")
body.addObject(pocket2)
pocket2.Profile = sketch4
pocket2.Type = "ThroughAll"

doc.recompute()
